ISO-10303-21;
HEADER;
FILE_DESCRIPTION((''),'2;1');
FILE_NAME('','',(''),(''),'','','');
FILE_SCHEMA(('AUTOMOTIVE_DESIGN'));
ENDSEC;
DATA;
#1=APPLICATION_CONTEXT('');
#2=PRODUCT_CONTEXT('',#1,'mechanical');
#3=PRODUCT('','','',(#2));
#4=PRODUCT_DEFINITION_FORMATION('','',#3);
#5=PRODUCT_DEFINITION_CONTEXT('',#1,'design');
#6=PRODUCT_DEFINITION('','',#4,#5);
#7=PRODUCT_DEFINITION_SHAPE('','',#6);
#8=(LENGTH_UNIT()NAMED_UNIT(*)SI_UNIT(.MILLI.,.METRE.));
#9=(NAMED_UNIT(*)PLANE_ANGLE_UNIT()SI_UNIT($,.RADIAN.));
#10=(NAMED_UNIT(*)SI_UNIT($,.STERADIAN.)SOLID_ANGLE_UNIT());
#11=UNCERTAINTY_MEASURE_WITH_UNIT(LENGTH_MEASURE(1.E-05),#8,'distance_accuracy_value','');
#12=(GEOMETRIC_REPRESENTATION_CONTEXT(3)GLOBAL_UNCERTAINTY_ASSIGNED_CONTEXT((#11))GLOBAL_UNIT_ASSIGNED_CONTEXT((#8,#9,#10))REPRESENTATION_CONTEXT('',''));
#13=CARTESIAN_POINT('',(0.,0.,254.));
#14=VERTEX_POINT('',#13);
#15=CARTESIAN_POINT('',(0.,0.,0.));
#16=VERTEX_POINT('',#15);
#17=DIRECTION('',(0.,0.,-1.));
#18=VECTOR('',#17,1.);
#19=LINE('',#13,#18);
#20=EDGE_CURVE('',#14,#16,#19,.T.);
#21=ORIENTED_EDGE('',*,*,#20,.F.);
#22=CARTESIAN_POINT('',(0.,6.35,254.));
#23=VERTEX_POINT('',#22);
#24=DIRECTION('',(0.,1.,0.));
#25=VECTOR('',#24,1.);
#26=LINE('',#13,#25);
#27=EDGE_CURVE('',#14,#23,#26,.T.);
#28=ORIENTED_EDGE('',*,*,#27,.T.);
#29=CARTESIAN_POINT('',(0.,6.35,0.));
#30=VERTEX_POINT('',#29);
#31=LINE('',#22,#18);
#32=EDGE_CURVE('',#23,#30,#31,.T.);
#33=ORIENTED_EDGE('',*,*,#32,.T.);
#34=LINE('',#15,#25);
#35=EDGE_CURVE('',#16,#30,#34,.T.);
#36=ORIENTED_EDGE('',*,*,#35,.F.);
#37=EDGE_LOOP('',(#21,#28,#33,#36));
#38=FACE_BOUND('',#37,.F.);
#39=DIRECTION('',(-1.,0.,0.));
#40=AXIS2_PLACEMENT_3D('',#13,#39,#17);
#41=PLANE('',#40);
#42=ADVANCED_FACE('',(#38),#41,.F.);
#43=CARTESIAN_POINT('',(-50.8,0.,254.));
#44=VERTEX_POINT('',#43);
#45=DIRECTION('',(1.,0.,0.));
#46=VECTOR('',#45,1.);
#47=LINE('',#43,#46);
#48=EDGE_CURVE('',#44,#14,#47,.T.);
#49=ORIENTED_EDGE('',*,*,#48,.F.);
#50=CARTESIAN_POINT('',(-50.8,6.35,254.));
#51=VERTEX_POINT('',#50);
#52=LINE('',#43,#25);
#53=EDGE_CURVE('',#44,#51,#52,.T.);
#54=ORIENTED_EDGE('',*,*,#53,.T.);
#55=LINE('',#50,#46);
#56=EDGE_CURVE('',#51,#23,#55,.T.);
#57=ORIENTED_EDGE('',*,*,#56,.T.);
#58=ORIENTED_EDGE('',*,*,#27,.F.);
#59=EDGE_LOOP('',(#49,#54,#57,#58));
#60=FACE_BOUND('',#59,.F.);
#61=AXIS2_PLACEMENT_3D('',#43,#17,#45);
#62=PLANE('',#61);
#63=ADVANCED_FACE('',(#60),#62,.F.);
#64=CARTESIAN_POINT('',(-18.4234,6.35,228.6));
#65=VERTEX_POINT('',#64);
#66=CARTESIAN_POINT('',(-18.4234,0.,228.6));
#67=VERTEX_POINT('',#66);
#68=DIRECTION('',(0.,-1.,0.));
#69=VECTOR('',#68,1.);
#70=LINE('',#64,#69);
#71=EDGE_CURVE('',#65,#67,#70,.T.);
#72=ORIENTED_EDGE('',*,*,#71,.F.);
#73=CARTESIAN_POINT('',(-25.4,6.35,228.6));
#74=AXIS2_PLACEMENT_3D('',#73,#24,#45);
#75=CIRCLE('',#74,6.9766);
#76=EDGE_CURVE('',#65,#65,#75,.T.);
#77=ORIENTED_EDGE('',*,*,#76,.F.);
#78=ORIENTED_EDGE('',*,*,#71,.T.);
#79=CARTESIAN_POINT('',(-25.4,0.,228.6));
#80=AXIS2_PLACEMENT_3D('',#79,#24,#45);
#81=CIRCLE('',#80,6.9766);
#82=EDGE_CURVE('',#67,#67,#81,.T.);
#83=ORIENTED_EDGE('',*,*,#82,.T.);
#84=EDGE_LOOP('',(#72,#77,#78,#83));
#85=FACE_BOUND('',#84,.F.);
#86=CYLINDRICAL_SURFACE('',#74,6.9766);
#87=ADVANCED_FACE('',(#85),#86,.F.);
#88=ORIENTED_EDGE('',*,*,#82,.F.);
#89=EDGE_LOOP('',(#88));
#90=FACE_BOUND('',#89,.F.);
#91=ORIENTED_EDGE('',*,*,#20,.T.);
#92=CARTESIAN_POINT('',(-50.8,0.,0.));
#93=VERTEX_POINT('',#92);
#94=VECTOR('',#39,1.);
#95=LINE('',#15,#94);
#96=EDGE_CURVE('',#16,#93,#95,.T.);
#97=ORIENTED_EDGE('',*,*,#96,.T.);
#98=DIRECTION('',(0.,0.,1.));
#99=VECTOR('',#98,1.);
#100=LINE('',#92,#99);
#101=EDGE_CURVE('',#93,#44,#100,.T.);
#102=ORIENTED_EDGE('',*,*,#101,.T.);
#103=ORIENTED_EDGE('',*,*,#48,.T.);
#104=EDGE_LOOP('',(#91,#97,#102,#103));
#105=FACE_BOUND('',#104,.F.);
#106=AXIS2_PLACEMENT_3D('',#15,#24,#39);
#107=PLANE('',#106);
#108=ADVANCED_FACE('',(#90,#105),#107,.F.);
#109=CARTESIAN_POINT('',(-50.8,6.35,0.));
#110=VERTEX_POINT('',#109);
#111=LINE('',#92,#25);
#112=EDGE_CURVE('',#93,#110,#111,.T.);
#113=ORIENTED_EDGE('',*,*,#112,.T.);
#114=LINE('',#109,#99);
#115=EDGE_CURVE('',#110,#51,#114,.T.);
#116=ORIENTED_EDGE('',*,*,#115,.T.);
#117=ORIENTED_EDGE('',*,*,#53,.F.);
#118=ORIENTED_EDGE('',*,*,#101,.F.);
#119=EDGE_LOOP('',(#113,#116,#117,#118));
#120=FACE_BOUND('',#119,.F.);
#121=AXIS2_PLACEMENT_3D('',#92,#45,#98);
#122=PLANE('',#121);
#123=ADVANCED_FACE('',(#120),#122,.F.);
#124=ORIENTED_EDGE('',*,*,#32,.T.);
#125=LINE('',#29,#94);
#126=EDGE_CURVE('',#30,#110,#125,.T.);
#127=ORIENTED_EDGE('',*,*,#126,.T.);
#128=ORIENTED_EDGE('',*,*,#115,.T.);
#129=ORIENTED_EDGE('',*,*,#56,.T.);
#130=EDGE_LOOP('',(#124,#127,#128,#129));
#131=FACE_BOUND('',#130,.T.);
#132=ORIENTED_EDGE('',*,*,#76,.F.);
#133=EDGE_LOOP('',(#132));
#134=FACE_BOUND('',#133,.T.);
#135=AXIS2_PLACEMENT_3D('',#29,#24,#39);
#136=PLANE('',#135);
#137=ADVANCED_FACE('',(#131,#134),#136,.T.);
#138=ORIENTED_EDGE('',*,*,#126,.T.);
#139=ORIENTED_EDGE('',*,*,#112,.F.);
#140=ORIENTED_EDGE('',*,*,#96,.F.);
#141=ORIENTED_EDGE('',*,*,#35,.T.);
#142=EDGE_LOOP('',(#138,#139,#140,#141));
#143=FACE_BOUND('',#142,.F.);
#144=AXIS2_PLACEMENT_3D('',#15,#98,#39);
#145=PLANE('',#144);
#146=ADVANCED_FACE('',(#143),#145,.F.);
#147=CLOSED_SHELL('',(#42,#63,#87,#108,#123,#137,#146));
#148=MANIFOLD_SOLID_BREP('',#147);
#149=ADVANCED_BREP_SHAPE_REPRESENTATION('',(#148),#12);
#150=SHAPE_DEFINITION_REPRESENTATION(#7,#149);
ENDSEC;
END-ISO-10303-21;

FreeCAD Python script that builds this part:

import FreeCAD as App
import Part
import Sketcher
from FreeCAD import Vector
Q = App.Units.Quantity

doc = App.newDocument("Part")
body = doc.addObject("PartDesign::Body", "Body")

# Sketch on XZ plane
sketch1 = doc.addObject("Sketcher::SketchObject", "Sketch")
body.addObject(sketch1)
sketch1.AttachmentSupport = (doc.XZ_Plane, [""])
sketch1.MapMode = "FlatFace"
sketch1.addGeometry(Part.LineSegment(Vector(0, 254, 0), Vector(0, 0, 0)), False)
sketch1.addGeometry(Part.LineSegment(Vector(0, 0, 0), Vector(-51, 0, 0)), False)
sketch1.addGeometry(Part.LineSegment(Vector(-51, 0, 0), Vector(-51, 254, 0)), False)
sketch1.addGeometry(Part.LineSegment(Vector(-51, 254, 0), Vector(0, 254, 0)), False)
sketch1.addConstraint(Sketcher.Constraint("Coincident", 0, 2, 1, 1))
sketch1.addConstraint(Sketcher.Constraint("Coincident", 1, 2, 2, 1))
sketch1.addConstraint(Sketcher.Constraint("Coincident", 2, 2, 3, 1))
sketch1.addConstraint(Sketcher.Constraint("Coincident", 3, 2, 0, 1))
sketch1.addConstraint(Sketcher.Constraint("Vertical", 0))
sketch1.addConstraint(Sketcher.Constraint("Horizontal", 1))
sketch1.addConstraint(Sketcher.Constraint("Vertical", 2))
sketch1.addConstraint(Sketcher.Constraint("Horizontal", 3))
sketch1.addConstraint(Sketcher.Constraint("Coincident", 0, 2, -1, 1))
sketch1.addConstraint(Sketcher.Constraint("DistanceX", 1, 2, 1, 1, Q("2 in")))
sketch1.addConstraint(Sketcher.Constraint("DistanceY", 0, 2, 0, 1, Q("10 in")))
pad1 = doc.addObject("PartDesign::Pad", "Pad")
body.addObject(pad1)
pad1.Profile = sketch1
pad1.Length = Q("0.25 in")
pad1.Reversed = True

# Sketch on XZ plane
sketch2 = doc.addObject("Sketcher::SketchObject", "Sketch001")
body.addObject(sketch2)
sketch2.AttachmentSupport = (doc.XZ_Plane, [""])
sketch2.MapMode = "FlatFace"
sketch2.AttachmentOffset = App.Placement(Vector(0, 0, -0.25 * 25.4), App.Rotation())
sketch2.addGeometry(Part.Circle(Vector(-25, 229, 0), Vector(0, 0, 1), 7), False)
sketch2.addConstraint(Sketcher.Constraint("DistanceX", 0, 3, -1, 1, Q("1 in")))
sketch2.addConstraint(Sketcher.Constraint("DistanceY", -1, 1, 0, 3, Q("9 in")))
sketch2.addConstraint(Sketcher.Constraint("Diameter", 0, Q("13.9532 mm")))
pocket1 = doc.addObject("PartDesign::Pocket", "Pocket")
body.addObject(pocket1)
pocket1.Profile = sketch2
pocket1.Length = Q("1 in")
pocket1.Reversed = True

doc.recompute()
